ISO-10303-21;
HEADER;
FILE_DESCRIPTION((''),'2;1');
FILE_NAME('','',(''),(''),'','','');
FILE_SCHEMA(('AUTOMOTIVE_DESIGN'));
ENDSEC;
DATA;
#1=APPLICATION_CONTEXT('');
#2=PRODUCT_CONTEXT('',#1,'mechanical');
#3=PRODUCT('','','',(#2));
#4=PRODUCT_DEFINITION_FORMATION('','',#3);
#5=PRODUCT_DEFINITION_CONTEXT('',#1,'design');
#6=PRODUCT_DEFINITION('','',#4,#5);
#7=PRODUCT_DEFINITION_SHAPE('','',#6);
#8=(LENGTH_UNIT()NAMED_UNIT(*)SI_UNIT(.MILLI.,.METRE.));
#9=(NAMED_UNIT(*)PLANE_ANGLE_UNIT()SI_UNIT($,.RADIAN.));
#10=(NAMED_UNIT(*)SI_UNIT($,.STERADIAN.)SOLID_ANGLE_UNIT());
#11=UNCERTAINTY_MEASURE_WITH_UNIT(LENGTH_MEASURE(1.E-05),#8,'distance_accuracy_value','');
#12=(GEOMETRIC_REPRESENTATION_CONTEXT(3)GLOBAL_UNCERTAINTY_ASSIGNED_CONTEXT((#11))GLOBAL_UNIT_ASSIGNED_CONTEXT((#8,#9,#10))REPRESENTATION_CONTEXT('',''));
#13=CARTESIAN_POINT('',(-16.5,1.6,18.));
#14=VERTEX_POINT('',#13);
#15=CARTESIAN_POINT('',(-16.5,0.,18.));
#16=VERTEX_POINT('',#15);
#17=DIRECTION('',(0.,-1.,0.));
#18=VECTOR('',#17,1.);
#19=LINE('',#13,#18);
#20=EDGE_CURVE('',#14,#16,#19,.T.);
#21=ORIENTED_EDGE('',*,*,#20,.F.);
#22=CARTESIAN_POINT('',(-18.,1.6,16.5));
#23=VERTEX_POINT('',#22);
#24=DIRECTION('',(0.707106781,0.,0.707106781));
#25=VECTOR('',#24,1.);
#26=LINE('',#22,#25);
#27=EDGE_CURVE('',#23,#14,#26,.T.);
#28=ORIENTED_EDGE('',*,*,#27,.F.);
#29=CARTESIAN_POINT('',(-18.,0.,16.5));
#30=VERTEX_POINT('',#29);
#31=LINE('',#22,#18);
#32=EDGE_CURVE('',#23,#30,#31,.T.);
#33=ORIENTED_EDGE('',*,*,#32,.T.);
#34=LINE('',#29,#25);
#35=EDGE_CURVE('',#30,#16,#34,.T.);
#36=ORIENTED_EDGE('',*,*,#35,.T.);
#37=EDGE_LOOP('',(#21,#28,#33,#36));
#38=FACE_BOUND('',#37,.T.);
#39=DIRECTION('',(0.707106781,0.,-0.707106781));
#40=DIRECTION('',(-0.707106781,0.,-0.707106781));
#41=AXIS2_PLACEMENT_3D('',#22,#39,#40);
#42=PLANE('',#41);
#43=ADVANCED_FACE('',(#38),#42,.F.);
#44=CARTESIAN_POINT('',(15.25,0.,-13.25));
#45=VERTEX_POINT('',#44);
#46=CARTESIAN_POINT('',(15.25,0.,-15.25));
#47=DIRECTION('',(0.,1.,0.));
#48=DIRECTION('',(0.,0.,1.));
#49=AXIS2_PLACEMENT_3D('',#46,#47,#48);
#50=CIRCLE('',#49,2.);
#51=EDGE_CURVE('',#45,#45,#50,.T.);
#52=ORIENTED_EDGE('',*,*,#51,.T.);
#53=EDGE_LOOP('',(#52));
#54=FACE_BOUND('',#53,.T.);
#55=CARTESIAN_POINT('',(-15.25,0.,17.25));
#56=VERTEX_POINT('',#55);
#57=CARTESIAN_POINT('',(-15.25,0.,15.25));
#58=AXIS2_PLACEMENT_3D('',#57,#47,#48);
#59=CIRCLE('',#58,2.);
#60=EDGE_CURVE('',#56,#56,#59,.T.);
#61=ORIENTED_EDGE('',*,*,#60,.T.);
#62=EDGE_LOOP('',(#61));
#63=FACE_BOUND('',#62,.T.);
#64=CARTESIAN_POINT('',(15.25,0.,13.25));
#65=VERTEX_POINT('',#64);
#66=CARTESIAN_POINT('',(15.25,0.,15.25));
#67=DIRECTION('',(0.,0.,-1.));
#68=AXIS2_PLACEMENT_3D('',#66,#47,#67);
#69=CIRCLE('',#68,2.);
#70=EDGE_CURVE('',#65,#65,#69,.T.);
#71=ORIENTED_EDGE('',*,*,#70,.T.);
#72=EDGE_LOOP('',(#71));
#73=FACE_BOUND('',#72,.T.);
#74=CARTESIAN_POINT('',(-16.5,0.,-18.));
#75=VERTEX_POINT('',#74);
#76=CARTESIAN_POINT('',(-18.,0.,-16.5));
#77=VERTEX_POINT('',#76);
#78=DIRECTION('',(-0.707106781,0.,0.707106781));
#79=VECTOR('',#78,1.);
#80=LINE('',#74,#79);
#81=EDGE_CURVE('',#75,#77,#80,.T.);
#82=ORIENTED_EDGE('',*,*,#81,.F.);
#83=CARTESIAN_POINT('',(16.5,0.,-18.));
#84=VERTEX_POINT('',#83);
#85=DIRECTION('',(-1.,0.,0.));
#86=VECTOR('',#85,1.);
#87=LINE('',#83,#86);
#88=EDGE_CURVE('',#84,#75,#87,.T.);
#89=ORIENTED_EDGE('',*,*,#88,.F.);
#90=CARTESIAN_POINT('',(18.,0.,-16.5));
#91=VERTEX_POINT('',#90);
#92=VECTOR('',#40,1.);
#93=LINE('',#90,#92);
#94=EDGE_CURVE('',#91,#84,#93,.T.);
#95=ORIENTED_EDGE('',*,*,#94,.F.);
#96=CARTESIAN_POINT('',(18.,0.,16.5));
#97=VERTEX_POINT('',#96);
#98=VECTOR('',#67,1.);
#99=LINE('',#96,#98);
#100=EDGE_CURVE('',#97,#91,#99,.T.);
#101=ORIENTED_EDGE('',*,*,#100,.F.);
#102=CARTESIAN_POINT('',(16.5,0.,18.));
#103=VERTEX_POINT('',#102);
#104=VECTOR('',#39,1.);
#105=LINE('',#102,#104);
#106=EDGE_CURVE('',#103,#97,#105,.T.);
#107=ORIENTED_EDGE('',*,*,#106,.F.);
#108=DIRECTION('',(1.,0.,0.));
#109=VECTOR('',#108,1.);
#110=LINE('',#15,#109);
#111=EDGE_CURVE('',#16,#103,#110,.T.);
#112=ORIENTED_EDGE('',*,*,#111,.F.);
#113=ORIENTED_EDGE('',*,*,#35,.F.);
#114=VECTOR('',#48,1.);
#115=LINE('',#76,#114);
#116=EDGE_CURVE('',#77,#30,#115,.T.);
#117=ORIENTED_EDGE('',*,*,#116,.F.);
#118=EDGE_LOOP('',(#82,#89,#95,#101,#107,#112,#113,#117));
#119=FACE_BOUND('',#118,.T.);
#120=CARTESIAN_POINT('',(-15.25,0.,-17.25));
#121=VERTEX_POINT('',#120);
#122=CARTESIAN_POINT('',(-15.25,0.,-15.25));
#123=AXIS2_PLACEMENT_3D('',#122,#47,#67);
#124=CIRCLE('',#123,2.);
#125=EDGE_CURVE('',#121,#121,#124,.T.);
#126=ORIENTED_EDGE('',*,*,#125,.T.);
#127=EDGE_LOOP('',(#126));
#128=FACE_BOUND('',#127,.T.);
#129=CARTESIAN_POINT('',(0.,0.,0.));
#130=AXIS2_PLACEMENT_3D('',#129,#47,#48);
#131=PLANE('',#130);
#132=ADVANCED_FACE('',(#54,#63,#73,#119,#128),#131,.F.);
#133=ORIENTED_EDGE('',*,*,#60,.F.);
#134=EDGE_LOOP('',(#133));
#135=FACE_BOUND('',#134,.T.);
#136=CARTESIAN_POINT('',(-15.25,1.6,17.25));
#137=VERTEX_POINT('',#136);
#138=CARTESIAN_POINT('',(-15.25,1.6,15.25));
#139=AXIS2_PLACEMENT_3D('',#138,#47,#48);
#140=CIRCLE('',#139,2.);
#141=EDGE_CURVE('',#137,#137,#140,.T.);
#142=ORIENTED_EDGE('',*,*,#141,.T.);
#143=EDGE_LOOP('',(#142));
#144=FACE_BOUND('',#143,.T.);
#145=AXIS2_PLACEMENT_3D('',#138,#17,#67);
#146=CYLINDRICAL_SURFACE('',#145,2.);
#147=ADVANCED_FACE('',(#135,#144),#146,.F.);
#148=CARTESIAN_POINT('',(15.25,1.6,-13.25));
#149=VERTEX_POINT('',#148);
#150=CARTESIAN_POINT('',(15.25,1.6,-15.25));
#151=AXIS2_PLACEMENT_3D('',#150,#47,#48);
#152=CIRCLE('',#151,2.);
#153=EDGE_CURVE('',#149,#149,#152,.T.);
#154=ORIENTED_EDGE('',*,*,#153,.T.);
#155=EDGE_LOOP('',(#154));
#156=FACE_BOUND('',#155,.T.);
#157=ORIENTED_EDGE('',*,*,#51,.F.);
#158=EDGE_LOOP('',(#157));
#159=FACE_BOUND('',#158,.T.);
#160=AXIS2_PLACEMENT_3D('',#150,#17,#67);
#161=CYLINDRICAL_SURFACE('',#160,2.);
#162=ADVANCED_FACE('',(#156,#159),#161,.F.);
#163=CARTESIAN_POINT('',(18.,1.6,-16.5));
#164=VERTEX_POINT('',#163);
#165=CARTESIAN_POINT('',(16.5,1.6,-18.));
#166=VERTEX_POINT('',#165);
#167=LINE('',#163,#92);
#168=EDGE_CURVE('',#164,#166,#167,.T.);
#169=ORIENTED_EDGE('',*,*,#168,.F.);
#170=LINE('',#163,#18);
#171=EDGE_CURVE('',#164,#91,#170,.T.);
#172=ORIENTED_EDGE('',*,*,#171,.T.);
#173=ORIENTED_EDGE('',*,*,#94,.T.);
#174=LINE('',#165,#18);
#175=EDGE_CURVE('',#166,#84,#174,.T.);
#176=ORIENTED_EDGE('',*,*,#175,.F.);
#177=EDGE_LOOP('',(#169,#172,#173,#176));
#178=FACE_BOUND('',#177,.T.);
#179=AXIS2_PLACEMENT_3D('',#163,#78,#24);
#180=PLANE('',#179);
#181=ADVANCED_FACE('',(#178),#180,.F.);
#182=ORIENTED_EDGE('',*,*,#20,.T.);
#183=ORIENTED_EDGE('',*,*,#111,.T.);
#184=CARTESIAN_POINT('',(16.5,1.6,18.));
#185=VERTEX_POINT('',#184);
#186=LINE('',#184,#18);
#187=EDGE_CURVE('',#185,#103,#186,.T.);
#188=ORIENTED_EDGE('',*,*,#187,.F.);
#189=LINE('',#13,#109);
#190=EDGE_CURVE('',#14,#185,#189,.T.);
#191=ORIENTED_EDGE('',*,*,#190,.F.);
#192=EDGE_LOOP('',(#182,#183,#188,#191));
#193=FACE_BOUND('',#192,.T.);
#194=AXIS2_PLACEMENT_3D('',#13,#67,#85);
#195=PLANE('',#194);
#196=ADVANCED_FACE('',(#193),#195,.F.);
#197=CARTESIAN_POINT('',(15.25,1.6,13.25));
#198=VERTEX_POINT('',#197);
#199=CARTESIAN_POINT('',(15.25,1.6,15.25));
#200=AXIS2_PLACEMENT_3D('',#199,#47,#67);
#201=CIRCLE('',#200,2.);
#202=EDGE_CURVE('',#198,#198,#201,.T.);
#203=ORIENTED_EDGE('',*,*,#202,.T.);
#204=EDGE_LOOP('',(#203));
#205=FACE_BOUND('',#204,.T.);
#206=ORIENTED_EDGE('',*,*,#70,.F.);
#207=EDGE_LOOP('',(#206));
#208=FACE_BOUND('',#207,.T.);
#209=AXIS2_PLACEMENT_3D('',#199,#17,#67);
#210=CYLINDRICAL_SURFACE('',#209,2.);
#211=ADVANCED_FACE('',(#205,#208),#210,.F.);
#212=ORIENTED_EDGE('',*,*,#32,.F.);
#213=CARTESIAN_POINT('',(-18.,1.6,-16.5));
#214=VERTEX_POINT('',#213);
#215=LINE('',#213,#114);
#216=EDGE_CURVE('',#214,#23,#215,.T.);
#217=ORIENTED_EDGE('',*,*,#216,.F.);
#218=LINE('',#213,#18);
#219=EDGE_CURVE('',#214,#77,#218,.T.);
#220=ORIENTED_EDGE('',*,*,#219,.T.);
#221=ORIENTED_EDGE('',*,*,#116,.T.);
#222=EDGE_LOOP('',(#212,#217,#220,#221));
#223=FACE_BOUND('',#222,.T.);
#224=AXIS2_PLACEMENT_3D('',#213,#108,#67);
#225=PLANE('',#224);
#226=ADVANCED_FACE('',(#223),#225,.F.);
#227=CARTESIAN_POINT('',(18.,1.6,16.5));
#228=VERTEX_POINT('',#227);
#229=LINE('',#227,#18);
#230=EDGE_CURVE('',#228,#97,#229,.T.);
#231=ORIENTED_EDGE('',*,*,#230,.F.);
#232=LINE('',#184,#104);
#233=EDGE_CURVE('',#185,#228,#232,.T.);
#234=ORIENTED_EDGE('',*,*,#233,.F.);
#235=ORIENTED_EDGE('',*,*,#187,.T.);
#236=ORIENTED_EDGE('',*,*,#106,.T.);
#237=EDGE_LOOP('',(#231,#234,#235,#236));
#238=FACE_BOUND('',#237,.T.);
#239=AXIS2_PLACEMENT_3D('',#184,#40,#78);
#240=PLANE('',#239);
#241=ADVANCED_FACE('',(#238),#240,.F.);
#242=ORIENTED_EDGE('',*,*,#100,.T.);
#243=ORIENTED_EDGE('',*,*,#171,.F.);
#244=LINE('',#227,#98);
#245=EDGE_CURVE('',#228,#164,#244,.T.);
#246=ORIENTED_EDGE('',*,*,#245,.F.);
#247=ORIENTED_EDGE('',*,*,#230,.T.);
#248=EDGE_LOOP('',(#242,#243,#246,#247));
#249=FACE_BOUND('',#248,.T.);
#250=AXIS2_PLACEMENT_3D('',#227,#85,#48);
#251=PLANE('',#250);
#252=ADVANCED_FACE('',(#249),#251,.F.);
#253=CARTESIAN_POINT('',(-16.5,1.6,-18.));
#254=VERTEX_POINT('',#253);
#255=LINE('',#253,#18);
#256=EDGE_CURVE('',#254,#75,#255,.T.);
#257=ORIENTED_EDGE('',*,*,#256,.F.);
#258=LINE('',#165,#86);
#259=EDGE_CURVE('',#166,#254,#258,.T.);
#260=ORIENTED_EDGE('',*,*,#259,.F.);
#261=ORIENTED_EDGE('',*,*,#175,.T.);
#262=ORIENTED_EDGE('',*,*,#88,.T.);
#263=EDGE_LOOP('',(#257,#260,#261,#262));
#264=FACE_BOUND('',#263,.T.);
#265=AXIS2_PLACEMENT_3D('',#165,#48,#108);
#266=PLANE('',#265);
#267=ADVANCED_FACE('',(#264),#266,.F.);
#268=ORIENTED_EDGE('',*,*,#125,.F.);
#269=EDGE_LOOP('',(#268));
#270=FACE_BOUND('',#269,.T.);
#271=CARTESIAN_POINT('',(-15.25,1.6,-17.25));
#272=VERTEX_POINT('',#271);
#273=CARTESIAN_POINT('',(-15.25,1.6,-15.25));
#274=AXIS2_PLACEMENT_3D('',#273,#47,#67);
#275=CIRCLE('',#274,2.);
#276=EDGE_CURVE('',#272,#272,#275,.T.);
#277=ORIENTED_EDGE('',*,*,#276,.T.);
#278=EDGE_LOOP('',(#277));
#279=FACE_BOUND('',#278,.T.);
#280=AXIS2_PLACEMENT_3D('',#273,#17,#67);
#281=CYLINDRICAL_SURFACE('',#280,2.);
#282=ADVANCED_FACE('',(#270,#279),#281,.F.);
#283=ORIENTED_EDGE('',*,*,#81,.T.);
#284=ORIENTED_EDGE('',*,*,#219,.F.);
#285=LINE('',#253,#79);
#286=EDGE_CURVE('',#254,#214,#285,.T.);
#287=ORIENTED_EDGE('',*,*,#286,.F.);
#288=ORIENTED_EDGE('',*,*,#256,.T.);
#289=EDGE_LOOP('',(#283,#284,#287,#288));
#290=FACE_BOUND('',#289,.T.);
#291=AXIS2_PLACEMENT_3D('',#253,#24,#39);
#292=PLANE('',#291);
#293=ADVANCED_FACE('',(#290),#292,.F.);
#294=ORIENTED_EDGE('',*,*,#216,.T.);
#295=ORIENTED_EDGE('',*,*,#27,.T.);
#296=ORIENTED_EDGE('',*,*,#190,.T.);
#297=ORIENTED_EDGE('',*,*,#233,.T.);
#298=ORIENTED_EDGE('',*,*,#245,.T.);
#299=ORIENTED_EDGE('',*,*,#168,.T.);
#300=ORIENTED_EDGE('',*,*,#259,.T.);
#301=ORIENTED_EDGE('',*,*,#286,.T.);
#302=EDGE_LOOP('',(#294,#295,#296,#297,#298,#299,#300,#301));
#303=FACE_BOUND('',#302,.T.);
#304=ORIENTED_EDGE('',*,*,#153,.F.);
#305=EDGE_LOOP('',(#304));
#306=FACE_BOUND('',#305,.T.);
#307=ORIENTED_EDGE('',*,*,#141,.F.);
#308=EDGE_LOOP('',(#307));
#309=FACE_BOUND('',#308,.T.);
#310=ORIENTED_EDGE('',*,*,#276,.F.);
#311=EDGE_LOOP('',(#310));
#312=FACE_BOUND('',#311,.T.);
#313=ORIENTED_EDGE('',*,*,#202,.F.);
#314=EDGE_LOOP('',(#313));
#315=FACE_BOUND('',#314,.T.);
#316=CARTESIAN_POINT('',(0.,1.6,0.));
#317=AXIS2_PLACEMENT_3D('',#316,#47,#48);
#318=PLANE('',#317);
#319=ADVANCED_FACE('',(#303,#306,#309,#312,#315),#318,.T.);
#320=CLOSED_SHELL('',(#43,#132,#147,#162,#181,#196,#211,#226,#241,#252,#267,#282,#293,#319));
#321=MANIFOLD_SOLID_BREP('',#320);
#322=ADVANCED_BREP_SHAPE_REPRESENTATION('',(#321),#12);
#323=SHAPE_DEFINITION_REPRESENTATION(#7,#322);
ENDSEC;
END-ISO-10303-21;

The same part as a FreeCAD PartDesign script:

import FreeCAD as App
import Part
import Sketcher


def add_polygon(sketch, points):
    """Adds a closed chain of lines whose ends are joined by coincident constraints."""
    first, n = sketch.GeometryCount, len(points)
    for a, b in zip(points, points[1:] + points[:1]):
        sketch.addGeometry(Part.LineSegment(App.Vector(*a, 0), App.Vector(*b, 0)), False)
    for i in range(n):
        sketch.addConstraint(Sketcher.Constraint("Coincident", first + i, 2, first + (i + 1) % n, 1))

doc = App.newDocument("Part")
body = doc.addObject("PartDesign::Body", "Body")

# Sketch on XZ plane
sketch1 = doc.addObject("Sketcher::SketchObject", "Sketch")
body.addObject(sketch1)
sketch1.AttachmentSupport = (doc.XZ_Plane, [""])
sketch1.MapMode = "FlatFace"
add_polygon(sketch1, [(-16.5, 18), (16.5, 18), (18, 16.5), (18, -16.5), (16.5, -18), (-16.5, -18), (-18, -16.5), (-18, 16.5)])  # lines 0-7
sketch1.addGeometry(Part.Circle(App.Vector(-15.2, 15.2, 0), App.Vector(0, 0, 1), 2), False)  # 8
sketch1.addGeometry(Part.Circle(App.Vector(15.2, 15.2, 0), App.Vector(0, 0, 1), 2), False)  # 9
sketch1.addGeometry(Part.Circle(App.Vector(-15.2, -15.2, 0), App.Vector(0, 0, 1), 2), False)  # 10
sketch1.addGeometry(Part.Circle(App.Vector(15.2, -15.2, 0), App.Vector(0, 0, 1), 2), False)  # 11
sketch1.addConstraint([
    Sketcher.Constraint("Horizontal", 0),
    Sketcher.Constraint("Vertical", 2),
    Sketcher.Constraint("Horizontal", 4),
    Sketcher.Constraint("Vertical", 6),
    Sketcher.Constraint("Equal", 8, 9),
    Sketcher.Constraint("Equal", 9, 10),
    Sketcher.Constraint("Equal", 10, 11),
    Sketcher.Constraint("Symmetric", 9, 3, 10, 3, -1, 1),
    Sketcher.Constraint("Symmetric", 8, 3, 11, 3, -1, 1),
    Sketcher.Constraint("Symmetric", 0, 2, 4, 2, -1, 1),
    Sketcher.Constraint("Symmetric", 1, 2, 5, 2, -1, 1),
    Sketcher.Constraint("Symmetric", 8, 3, 9, 3, -2),
    Sketcher.Constraint("Perpendicular", 1, 3),
    Sketcher.Constraint("Perpendicular", 5, 7),
    Sketcher.Constraint("Horizontal", 2, 2, 5, 2),
    Sketcher.Constraint("Horizontal", 1, 2, 6, 2),
    Sketcher.Constraint("Vertical", 0, 2, 3, 2),
    Sketcher.Constraint("Equal", 4, 2),
    Sketcher.Constraint("Diameter", 8, 4.0),
    Sketcher.Constraint("DistanceX", 0, 1, 0, 2, 33.0),
    Sketcher.Constraint("DistanceY", -1, 1, 0, 2, 18.0),
    Sketcher.Constraint("DistanceX", 8, 3, 9, 3, 30.5),
    Sketcher.Constraint("DistanceY", 10, 3, 8, 3, 30.5),
])
pad1 = doc.addObject("PartDesign::Pad", "Pad")
body.addObject(pad1)
pad1.Profile = sketch1
pad1.Length = 1.6
pad1.Reversed = True

doc.recompute()
